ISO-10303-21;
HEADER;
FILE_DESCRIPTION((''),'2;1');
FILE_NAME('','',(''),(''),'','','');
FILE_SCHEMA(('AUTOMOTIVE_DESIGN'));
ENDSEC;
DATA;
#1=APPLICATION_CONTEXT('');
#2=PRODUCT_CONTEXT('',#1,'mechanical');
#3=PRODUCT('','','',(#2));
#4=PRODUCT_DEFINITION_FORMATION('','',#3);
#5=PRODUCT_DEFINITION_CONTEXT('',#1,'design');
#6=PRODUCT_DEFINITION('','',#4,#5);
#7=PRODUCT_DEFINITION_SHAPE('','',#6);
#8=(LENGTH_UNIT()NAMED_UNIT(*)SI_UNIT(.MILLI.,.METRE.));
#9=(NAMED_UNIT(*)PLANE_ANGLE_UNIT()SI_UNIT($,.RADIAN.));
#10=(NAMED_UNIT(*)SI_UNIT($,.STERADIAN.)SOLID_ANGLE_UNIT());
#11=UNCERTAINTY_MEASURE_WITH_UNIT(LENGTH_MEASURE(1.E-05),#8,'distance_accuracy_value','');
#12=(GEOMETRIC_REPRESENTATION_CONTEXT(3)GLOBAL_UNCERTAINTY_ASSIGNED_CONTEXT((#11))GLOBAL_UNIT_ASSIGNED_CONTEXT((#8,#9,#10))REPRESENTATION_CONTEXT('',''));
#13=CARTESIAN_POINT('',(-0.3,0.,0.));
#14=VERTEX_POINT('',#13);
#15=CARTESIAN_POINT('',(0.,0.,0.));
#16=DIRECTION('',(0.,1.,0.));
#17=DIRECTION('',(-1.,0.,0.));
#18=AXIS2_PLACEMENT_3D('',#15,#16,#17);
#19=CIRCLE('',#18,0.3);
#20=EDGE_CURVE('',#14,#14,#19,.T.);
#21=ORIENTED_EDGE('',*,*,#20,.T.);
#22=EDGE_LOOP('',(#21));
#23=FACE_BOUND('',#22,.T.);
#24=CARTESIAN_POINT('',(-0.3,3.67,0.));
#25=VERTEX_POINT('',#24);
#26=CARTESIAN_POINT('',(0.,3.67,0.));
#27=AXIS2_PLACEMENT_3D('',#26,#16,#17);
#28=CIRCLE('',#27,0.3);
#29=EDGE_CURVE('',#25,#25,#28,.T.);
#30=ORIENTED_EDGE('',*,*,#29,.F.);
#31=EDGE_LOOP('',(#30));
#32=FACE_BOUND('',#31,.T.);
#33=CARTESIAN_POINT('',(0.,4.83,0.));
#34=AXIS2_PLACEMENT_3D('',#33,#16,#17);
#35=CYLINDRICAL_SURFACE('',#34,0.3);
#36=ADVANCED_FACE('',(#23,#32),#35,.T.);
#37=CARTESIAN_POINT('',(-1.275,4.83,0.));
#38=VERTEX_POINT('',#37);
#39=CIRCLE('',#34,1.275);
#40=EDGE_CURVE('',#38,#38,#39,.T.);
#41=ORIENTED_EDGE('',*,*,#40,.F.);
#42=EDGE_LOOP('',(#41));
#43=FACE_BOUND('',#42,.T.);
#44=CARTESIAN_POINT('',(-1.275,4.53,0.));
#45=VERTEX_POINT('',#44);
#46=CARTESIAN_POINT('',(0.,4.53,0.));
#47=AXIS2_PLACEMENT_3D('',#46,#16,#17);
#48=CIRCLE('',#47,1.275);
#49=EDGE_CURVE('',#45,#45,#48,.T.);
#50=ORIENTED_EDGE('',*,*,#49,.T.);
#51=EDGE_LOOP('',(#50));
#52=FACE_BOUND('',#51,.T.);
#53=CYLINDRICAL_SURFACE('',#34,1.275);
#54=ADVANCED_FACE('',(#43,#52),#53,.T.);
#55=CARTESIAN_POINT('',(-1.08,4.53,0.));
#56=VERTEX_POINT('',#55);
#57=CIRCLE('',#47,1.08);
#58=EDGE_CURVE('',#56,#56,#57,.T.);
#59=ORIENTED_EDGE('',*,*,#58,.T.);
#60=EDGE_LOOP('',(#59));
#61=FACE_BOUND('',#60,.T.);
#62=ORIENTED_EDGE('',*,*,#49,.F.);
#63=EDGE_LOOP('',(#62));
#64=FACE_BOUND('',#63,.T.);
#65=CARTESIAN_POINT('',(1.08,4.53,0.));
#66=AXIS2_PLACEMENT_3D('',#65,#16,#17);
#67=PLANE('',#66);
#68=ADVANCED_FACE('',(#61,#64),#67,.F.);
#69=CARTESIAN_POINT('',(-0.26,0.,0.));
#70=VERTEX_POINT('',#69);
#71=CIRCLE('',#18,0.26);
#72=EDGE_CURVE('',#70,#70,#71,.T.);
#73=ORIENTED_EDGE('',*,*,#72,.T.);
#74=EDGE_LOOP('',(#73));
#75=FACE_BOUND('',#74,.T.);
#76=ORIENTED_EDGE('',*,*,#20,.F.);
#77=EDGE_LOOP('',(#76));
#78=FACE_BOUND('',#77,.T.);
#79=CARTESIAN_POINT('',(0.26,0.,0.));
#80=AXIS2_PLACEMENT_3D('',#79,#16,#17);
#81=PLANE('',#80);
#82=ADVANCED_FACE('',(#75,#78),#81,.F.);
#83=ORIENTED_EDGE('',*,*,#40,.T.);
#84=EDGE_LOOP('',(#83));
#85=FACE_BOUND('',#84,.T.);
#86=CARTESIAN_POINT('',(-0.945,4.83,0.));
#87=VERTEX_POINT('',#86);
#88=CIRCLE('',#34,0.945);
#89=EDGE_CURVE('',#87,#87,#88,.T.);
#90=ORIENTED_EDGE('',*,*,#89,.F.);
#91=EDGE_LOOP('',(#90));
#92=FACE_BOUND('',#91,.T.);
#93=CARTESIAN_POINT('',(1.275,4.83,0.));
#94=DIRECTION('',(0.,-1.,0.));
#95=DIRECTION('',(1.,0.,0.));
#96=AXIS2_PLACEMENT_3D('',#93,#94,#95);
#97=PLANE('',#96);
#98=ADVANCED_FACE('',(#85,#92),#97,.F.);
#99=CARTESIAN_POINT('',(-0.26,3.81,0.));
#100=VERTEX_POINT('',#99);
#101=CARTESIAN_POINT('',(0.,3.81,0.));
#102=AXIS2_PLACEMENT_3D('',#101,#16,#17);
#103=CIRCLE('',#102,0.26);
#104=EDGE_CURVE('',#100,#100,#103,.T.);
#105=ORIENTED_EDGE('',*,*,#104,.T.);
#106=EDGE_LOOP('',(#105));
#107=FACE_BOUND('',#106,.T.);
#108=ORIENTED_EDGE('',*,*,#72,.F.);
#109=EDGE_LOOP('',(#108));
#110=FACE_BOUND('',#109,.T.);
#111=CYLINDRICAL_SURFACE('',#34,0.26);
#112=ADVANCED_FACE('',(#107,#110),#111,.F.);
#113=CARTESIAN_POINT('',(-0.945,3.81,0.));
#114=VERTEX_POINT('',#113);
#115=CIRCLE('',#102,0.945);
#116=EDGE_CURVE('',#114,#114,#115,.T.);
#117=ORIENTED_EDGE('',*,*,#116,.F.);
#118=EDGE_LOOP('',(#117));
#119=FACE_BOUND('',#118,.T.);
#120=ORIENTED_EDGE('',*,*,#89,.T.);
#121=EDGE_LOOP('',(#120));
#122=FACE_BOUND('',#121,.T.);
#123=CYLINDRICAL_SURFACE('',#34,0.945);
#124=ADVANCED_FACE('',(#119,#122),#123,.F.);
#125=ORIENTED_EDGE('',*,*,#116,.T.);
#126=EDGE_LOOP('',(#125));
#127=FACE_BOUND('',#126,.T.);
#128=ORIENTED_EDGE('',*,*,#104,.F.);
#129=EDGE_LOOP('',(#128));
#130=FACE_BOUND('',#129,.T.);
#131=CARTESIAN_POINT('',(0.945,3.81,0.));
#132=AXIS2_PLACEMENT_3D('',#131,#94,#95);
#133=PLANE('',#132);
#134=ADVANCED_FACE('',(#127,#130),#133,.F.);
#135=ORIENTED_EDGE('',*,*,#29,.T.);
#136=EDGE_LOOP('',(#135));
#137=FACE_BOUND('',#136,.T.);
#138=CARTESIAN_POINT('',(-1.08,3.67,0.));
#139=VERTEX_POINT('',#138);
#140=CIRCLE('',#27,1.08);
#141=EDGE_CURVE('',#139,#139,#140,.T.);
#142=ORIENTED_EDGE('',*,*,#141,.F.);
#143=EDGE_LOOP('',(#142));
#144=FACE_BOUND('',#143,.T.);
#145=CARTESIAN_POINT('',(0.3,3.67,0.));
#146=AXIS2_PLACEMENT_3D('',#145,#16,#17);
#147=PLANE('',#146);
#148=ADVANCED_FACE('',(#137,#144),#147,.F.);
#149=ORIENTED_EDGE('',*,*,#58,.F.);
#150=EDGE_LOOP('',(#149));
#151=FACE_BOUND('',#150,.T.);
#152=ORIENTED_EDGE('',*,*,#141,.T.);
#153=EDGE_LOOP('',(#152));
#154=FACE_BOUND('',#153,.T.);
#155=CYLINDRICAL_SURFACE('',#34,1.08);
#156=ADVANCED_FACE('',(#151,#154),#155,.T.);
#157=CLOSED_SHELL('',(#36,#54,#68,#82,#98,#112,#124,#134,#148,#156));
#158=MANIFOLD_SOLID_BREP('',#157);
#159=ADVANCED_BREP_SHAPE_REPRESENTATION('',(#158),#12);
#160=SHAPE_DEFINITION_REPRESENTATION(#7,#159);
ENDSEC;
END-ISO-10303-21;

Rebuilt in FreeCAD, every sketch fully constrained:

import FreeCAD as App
import Part
import Sketcher


def add_polygon(sketch, points):
    """Adds a closed chain of lines whose ends are joined by coincident constraints."""
    first, n = sketch.GeometryCount, len(points)
    for a, b in zip(points, points[1:] + points[:1]):
        sketch.addGeometry(Part.LineSegment(App.Vector(*a, 0), App.Vector(*b, 0)), False)
    for i in range(n):
        sketch.addConstraint(Sketcher.Constraint("Coincident", first + i, 2, first + (i + 1) % n, 1))

doc = App.newDocument("Part")
body = doc.addObject("PartDesign::Body", "Body")

sketch1 = doc.addObject("Sketcher::SketchObject", "Sketch")
body.addObject(sketch1)
sketch1.AttachmentSupport = (doc.XY_Plane, [""])
sketch1.MapMode = "FlatFace"
add_polygon(sketch1, [(0.26, 0), (0.3, 0), (0.3, 3.67), (1.08, 3.67), (1.08, 4.53), (1.275, 4.53), (1.275, 4.83), (0.945, 4.83), (0.945, 3.81), (0.26, 3.81)])
sketch1.addConstraint([
    Sketcher.Constraint("Horizontal", 0),
    Sketcher.Constraint("Vertical", 1),
    Sketcher.Constraint("Horizontal", 2),
    Sketcher.Constraint("Vertical", 3),
    Sketcher.Constraint("Horizontal", 4),
    Sketcher.Constraint("Vertical", 5),
    Sketcher.Constraint("Horizontal", 6),
    Sketcher.Constraint("Vertical", 7),
    Sketcher.Constraint("Horizontal", 8),
    Sketcher.Constraint("Vertical", 9),
    Sketcher.Constraint("PointOnObject", 0, 2, -1),
    Sketcher.Constraint("DistanceY", 5, 1, 5, 2, 0.3),
    Sketcher.Constraint("DistanceX", 0, 1, 0, 2, 0.04),
    Sketcher.Constraint("DistanceX", 2, 1, 2, 2, 0.78),
    Sketcher.Constraint("DistanceX", 6, 2, 6, 1, 0.33),
    Sketcher.Constraint("DistanceY", 1, 1, 1, 2, 3.67),
    Sketcher.Constraint("DistanceY", 3, 1, 3, 2, 0.86),
    Sketcher.Constraint("DistanceY", 7, 2, 7, 1, 1.02),
    Sketcher.Constraint("DistanceX", -1, 1, 0, 2, 0.3),
    Sketcher.Constraint("DistanceX", 4, 1, 4, 2, 0.195),
])
revolution = doc.addObject("PartDesign::Revolution", "Revolution")
body.addObject(revolution)
revolution.Profile = sketch1
revolution.ReferenceAxis = (sketch1, ["V_Axis"])
revolution.Angle = 360

doc.recompute()
